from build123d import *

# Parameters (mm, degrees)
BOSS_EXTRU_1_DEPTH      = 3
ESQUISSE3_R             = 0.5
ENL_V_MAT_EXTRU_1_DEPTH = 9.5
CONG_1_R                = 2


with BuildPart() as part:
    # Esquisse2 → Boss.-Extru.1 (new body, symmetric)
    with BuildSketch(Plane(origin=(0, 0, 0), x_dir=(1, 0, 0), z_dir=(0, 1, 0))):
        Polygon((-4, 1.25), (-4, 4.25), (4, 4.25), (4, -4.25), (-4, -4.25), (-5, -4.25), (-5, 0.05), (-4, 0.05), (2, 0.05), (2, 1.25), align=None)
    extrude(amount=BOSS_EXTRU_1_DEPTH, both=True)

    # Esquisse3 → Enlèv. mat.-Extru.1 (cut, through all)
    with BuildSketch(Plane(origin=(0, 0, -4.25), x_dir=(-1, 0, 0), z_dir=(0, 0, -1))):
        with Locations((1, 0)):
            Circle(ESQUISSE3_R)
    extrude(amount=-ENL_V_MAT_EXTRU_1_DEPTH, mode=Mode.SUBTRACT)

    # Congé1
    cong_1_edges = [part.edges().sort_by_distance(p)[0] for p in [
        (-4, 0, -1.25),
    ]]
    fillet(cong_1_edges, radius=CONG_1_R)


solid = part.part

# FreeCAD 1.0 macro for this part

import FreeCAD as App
import Part
import Sketcher

V = App.Vector
Q = App.Units.Quantity


def edges_at(feature, points):
    """Names of the edges that pass closest to the given points."""
    edges = feature.Shape.Edges
    near = lambda p: min(range(len(edges)), key=lambda i: edges[i].distToShape(Part.Vertex(*p))[0])
    return sorted({f"Edge{near(p) + 1}" for p in points})


def add_polygon(sketch, points):
    """Adds a closed chain of lines whose ends are joined by coincident constraints."""
    first, n = sketch.GeometryCount, len(points)
    for a, b in zip(points, points[1:] + points[:1]):
        sketch.addGeometry(Part.LineSegment(App.Vector(*a, 0), App.Vector(*b, 0)), False)
    for i in range(n):
        sketch.addConstraint(Sketcher.Constraint("Coincident", first + i, 2, first + (i + 1) % n, 1))

doc = App.newDocument("Part")
params = doc.addObject("Spreadsheet::Sheet", "Params")
for row, (alias, value) in enumerate([
    ("sketch1_width", "6 mm"),
    ("sketch1_width2", "7 mm"),
    ("sketch1_width3", "9 mm"),
    ("sketch1_height", "3 mm"),
    ("sketch1_height2", "1.2 mm"),
    ("pad1_length", "6 mm"),
    ("sketch2_diameter", "1 mm"),
    ("fillet_radius", "2 mm"),
], start=1):
    params.set(f"A{row}", alias)
    params.set(f"B{row}", "=" + value)
    params.setAlias(f"B{row}", alias)

body = doc.addObject("PartDesign::Body", "Body")

sketch1 = doc.addObject("Sketcher::SketchObject", "Sketch")
body.addObject(sketch1)
sketch1.AttachmentSupport = (doc.XZ_Plane, [""])
sketch1.MapMode = "FlatFace"
add_polygon(sketch1, [(-4, -4.2), (-4, -1.2), (2, -1.2), (2, -0.1), (-5, -0.1), (-5, 4.2), (4, 4.2), (4, -4.2)])
sketch1.addConstraint(Sketcher.Constraint("Vertical", 0))
sketch1.addConstraint(Sketcher.Constraint("Horizontal", 1))
sketch1.addConstraint(Sketcher.Constraint("Vertical", 2))
sketch1.addConstraint(Sketcher.Constraint("Horizontal", 3))
sketch1.addConstraint(Sketcher.Constraint("Vertical", 4))
sketch1.addConstraint(Sketcher.Constraint("Horizontal", 5))
sketch1.addConstraint(Sketcher.Constraint("Vertical", 6))
sketch1.addConstraint(Sketcher.Constraint("Horizontal", 7))
sketch1.addConstraint(Sketcher.Constraint("Symmetric", 5, 2, 7, 2, -1, 1))
sketch1.addConstraint(Sketcher.Constraint("DistanceX", 1, 1, 1, 2, Q("6 mm")))
sketch1.addConstraint(Sketcher.Constraint("DistanceX", 3, 2, 3, 1, Q("7 mm")))
sketch1.addConstraint(Sketcher.Constraint("DistanceX", 5, 1, 5, 2, Q("9 mm")))
sketch1.addConstraint(Sketcher.Constraint("DistanceY", 0, 1, 0, 2, Q("3 mm")))
sketch1.addConstraint(Sketcher.Constraint("DistanceY", 2, 1, 2, 2, Q("1.2 mm")))
sketch1.addConstraint(Sketcher.Constraint("DistanceY", 4, 1, 4, 2, Q("4.3 mm")))
sketch1.setExpression("Constraints[17]", "Params.sketch1_width")
sketch1.setExpression("Constraints[18]", "Params.sketch1_width2")
sketch1.setExpression("Constraints[19]", "Params.sketch1_width3")
sketch1.setExpression("Constraints[20]", "Params.sketch1_height")
sketch1.setExpression("Constraints[21]", "Params.sketch1_height2")
pad1 = doc.addObject("PartDesign::Pad", "Pad")
body.addObject(pad1)
pad1.Profile = sketch1
pad1.setExpression("Length", "Params.pad1_length")
pad1.Midplane = True

sketch2 = doc.addObject("Sketcher::SketchObject", "Sketch001")
body.addObject(sketch2)
sketch2.AttachmentSupport = (doc.XY_Plane, [""])
sketch2.MapMode = "FlatFace"
sketch2.AttachmentOffset = App.Placement(V(0, 0, -4.25), App.Rotation())
sketch2.addGeometry(Part.Circle(V(-1, 0, 0), V(0, 0, 1), 0.5), False)
sketch2.addConstraint(Sketcher.Constraint("PointOnObject", 0, 3, -1))
sketch2.addConstraint(Sketcher.Constraint("Diameter", 0, Q("1 mm")))
sketch2.addConstraint(Sketcher.Constraint("DistanceX", 0, 3, -1, 1, Q("1 mm")))
sketch2.setExpression("Constraints[1]", "Params.sketch2_diameter")
pocket1 = doc.addObject("PartDesign::Pocket", "Pocket")
body.addObject(pocket1)
pocket1.Profile = sketch2
pocket1.Type = "ThroughAll"
pocket1.Reversed = True
doc.recompute()

fillet = doc.addObject("PartDesign::Fillet", "Fillet")
body.addObject(fillet)
fillet.Base = (pocket1, edges_at(pocket1, [(-4, 0, -1.25)]))
fillet.setExpression("Radius", "Params.fillet_radius")

doc.recompute()
